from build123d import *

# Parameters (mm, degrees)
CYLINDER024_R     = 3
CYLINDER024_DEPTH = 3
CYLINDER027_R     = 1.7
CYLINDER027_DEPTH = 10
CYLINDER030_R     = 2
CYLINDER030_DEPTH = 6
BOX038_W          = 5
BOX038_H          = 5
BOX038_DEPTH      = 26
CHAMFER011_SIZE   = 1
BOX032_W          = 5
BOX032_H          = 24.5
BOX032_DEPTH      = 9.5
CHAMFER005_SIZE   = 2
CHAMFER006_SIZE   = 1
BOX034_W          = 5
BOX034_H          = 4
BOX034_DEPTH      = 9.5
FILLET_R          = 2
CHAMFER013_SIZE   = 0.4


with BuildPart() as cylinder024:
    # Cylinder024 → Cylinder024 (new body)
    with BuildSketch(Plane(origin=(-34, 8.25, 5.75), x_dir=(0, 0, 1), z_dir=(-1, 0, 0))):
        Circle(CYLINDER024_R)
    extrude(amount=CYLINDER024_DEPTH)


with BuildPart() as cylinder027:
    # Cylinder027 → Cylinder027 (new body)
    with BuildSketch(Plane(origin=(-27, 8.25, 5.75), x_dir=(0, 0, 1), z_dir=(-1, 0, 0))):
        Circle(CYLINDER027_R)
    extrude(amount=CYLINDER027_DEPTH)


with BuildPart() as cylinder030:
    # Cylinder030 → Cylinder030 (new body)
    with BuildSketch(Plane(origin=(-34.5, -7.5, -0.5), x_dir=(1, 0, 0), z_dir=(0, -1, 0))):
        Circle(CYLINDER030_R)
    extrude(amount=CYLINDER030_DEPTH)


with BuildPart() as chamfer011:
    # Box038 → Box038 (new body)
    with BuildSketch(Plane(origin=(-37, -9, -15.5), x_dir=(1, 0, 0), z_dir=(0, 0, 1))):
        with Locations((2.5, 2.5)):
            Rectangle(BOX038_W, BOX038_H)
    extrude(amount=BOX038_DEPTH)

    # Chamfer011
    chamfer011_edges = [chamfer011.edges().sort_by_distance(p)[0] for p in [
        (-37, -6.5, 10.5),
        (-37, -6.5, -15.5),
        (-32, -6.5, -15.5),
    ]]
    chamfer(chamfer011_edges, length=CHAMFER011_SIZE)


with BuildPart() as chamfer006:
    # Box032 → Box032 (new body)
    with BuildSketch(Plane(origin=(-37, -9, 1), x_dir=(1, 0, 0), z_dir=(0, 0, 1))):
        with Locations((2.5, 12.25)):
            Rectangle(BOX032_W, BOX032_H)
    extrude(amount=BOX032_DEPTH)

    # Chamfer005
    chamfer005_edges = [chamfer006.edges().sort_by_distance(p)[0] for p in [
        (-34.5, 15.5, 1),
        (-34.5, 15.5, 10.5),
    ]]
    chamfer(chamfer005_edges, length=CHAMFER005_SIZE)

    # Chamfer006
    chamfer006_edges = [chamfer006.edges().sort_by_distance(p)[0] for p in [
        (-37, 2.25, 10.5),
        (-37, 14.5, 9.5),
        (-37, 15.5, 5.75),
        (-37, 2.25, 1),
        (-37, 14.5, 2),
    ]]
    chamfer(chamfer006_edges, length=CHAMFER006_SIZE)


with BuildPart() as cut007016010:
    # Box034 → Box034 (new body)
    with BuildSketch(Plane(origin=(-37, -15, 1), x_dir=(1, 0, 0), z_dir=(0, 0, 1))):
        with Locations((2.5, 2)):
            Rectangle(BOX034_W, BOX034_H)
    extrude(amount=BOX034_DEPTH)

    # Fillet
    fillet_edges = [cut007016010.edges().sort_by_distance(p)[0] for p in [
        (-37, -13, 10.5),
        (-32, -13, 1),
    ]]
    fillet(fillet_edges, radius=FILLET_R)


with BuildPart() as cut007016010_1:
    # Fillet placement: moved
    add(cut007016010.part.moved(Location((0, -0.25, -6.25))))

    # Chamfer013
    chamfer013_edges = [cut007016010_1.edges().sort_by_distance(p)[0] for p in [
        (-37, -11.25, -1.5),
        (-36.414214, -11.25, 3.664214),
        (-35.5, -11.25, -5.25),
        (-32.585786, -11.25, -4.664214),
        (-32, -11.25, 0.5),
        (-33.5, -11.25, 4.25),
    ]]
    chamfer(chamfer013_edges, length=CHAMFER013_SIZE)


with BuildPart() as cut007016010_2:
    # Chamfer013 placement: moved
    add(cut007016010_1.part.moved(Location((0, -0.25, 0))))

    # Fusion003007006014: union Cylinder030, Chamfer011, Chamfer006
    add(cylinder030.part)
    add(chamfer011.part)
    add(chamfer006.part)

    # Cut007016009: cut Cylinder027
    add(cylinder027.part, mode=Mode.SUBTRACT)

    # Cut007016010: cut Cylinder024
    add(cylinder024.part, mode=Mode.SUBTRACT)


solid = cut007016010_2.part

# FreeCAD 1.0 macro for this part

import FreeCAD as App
import Part
import Sketcher

V = App.Vector


def edges_at(feature, points):
    """Names of the edges that pass closest to the given points."""
    edges = feature.Shape.Edges
    near = lambda p: min(range(len(edges)), key=lambda i: edges[i].distToShape(Part.Vertex(*p))[0])
    return sorted({f"Edge{near(p) + 1}" for p in points})


def add_polygon(sketch, points):
    """Adds a closed chain of lines whose ends are joined by coincident constraints."""
    first, n = sketch.GeometryCount, len(points)
    for a, b in zip(points, points[1:] + points[:1]):
        sketch.addGeometry(Part.LineSegment(App.Vector(*a, 0), App.Vector(*b, 0)), False)
    for i in range(n):
        sketch.addConstraint(Sketcher.Constraint("Coincident", first + i, 2, first + (i + 1) % n, 1))

doc = App.newDocument("Part")
params = doc.addObject("Spreadsheet::Sheet", "Params")
for row, (alias, value) in enumerate([
    ("sketch1_diameter", "6 mm"),
    ("pad1_length", "3 mm"),
    ("sketch2_diameter", "3.4 mm"),
    ("pad2_length", "10 mm"),
    ("sketch3_diameter", "4 mm"),
    ("pad3_length", "6 mm"),
    ("sketch4_width", "5 mm"),
    ("pad4_length", "26 mm"),
    ("chamfer_size", "1 mm"),
    ("sketch5_width", "5 mm"),
    ("sketch5_height", "24.5 mm"),
    ("pad5_length", "9.5 mm"),
    ("chamfer2_size", "2 mm"),
    ("chamfer3_size", "1 mm"),
    ("sketch6_width", "5 mm"),
    ("sketch6_height", "4 mm"),
    ("pad6_length", "9.5 mm"),
    ("fillet_radius", "2 mm"),
    ("chamfer4_size", "0.4 mm"),
], start=1):
    params.set(f"A{row}", alias)
    params.set(f"B{row}", "=" + value)
    params.setAlias(f"B{row}", alias)

body = doc.addObject("PartDesign::Body", "Body")

sketch1 = doc.addObject("Sketcher::SketchObject", "Sketch")
body.addObject(sketch1)
sketch1.AttachmentSupport = (doc.YZ_Plane, [""])
sketch1.MapMode = "FlatFace"
sketch1.AttachmentOffset = App.Placement(V(0, 0, -34), App.Rotation())
sketch1.addGeometry(Part.Circle(V(8.2, 5.8, 0), V(0, 0, 1), 3), False)
sketch1.addConstraint(Sketcher.Constraint("Diameter", 0, 6.0))
sketch1.addConstraint(Sketcher.Constraint("DistanceX", -1, 1, 0, 3, 8.25))
sketch1.addConstraint(Sketcher.Constraint("DistanceY", -1, 1, 0, 3, 5.75))
sketch1.setExpression("Constraints[0]", "Params.sketch1_diameter")
pad1 = doc.addObject("PartDesign::Pad", "Pad")
body.addObject(pad1)
pad1.Profile = sketch1
pad1.setExpression("Length", "Params.pad1_length")
pad1.Reversed = True
body2 = doc.addObject("PartDesign::Body", "Body001")

sketch2 = doc.addObject("Sketcher::SketchObject", "Sketch001")
body2.addObject(sketch2)
sketch2.AttachmentSupport = (doc.getObject("YZ_Plane001"), [""])
sketch2.MapMode = "FlatFace"
sketch2.AttachmentOffset = App.Placement(V(0, 0, -27), App.Rotation())
sketch2.addGeometry(Part.Circle(V(8.2, 5.8, 0), V(0, 0, 1), 1.7), False)
sketch2.addConstraint(Sketcher.Constraint("Diameter", 0, 3.4))
sketch2.addConstraint(Sketcher.Constraint("DistanceX", -1, 1, 0, 3, 8.25))
sketch2.addConstraint(Sketcher.Constraint("DistanceY", -1, 1, 0, 3, 5.75))
sketch2.setExpression("Constraints[0]", "Params.sketch2_diameter")
pad2 = doc.addObject("PartDesign::Pad", "Pad001")
body2.addObject(pad2)
pad2.Profile = sketch2
pad2.setExpression("Length", "Params.pad2_length")
pad2.Reversed = True
body3 = doc.addObject("PartDesign::Body", "Body002")

sketch3 = doc.addObject("Sketcher::SketchObject", "Sketch002")
body3.addObject(sketch3)
sketch3.AttachmentSupport = (doc.getObject("XZ_Plane002"), [""])
sketch3.MapMode = "FlatFace"
sketch3.AttachmentOffset = App.Placement(V(0, 0, 7.5), App.Rotation())
sketch3.addGeometry(Part.Circle(V(-34.5, -0.5, 0), V(0, 0, 1), 2), False)
sketch3.addConstraint(Sketcher.Constraint("Diameter", 0, 4.0))
sketch3.addConstraint(Sketcher.Constraint("DistanceX", 0, 3, -1, 1, 34.5))
sketch3.addConstraint(Sketcher.Constraint("DistanceY", 0, 3, -1, 1, 0.5))
sketch3.setExpression("Constraints[0]", "Params.sketch3_diameter")
pad3 = doc.addObject("PartDesign::Pad", "Pad002")
body3.addObject(pad3)
pad3.Profile = sketch3
pad3.setExpression("Length", "Params.pad3_length")
body4 = doc.addObject("PartDesign::Body", "Body003")

sketch4 = doc.addObject("Sketcher::SketchObject", "Sketch003")
body4.addObject(sketch4)
sketch4.AttachmentSupport = (doc.getObject("XY_Plane003"), [""])
sketch4.MapMode = "FlatFace"
sketch4.AttachmentOffset = App.Placement(V(0, 0, -15.5), App.Rotation())
add_polygon(sketch4, [(-37, -4), (-37, -9), (-32, -9), (-32, -4)])
sketch4.addConstraint(Sketcher.Constraint("Vertical", 0))
sketch4.addConstraint(Sketcher.Constraint("Horizontal", 1))
sketch4.addConstraint(Sketcher.Constraint("Vertical", 2))
sketch4.addConstraint(Sketcher.Constraint("Horizontal", 3))
sketch4.addConstraint(Sketcher.Constraint("Equal", 3, 0))
sketch4.addConstraint(Sketcher.Constraint("DistanceX", 1, 1, 1, 2, 5.0))
sketch4.addConstraint(Sketcher.Constraint("DistanceX", 0, 2, -1, 1, 37.0))
sketch4.addConstraint(Sketcher.Constraint("DistanceY", 0, 2, -1, 1, 9.0))
sketch4.setExpression("Constraints[9]", "Params.sketch4_width")
pad4 = doc.addObject("PartDesign::Pad", "Pad003")
body4.addObject(pad4)
pad4.Profile = sketch4
pad4.setExpression("Length", "Params.pad4_length")
doc.recompute()

chamfer = doc.addObject("PartDesign::Chamfer", "Chamfer")
body4.addObject(chamfer)
chamfer.Base = (pad4, edges_at(pad4, [(-37, -6.5, 10.5), (-37, -6.5, -15.5), (-32, -6.5, -15.5)]))
chamfer.setExpression("Size", "Params.chamfer_size")
body5 = doc.addObject("PartDesign::Body", "Body004")

sketch5 = doc.addObject("Sketcher::SketchObject", "Sketch004")
body5.addObject(sketch5)
sketch5.AttachmentSupport = (doc.getObject("XY_Plane004"), [""])
sketch5.MapMode = "FlatFace"
sketch5.AttachmentOffset = App.Placement(V(0, 0, 1), App.Rotation())
add_polygon(sketch5, [(-37, 16), (-37, -9), (-32, -9), (-32, 16)])
sketch5.addConstraint(Sketcher.Constraint("Vertical", 0))
sketch5.addConstraint(Sketcher.Constraint("Horizontal", 1))
sketch5.addConstraint(Sketcher.Constraint("Vertical", 2))
sketch5.addConstraint(Sketcher.Constraint("Horizontal", 3))
sketch5.addConstraint(Sketcher.Constraint("DistanceX", 1, 1, 1, 2, 5.0))
sketch5.addConstraint(Sketcher.Constraint("DistanceY", 0, 2, 0, 1, 24.5))
sketch5.addConstraint(Sketcher.Constraint("DistanceX", 0, 2, -1, 1, 37.0))
sketch5.addConstraint(Sketcher.Constraint("DistanceY", 0, 2, -1, 1, 9.0))
sketch5.setExpression("Constraints[8]", "Params.sketch5_width")
sketch5.setExpression("Constraints[9]", "Params.sketch5_height")
pad5 = doc.addObject("PartDesign::Pad", "Pad004")
body5.addObject(pad5)
pad5.Profile = sketch5
pad5.setExpression("Length", "Params.pad5_length")
doc.recompute()

chamfer2 = doc.addObject("PartDesign::Chamfer", "Chamfer001")
body5.addObject(chamfer2)
chamfer2.Base = (pad5, edges_at(pad5, [(-34.5, 15.5, 1), (-34.5, 15.5, 10.5)]))
chamfer2.setExpression("Size", "Params.chamfer2_size")
doc.recompute()

chamfer3 = doc.addObject("PartDesign::Chamfer", "Chamfer002")
body5.addObject(chamfer3)
chamfer3.Base = (chamfer2, edges_at(chamfer2, [
    (-37, 2.25, 10.5),
    (-37, 14.5, 9.5),
    (-37, 15.5, 5.75),
    (-37, 2.25, 1),
    (-37, 14.5, 2),
]))
chamfer3.setExpression("Size", "Params.chamfer3_size")
body6 = doc.addObject("PartDesign::Body", "Body005")

sketch6 = doc.addObject("Sketcher::SketchObject", "Sketch005")
body6.addObject(sketch6)
sketch6.AttachmentSupport = (doc.getObject("XY_Plane005"), [""])
sketch6.MapMode = "FlatFace"
sketch6.AttachmentOffset = App.Placement(V(0, 0, 1), App.Rotation())
add_polygon(sketch6, [(-37, -11), (-37, -15), (-32, -15), (-32, -11)])
sketch6.addConstraint(Sketcher.Constraint("Vertical", 0))
sketch6.addConstraint(Sketcher.Constraint("Horizontal", 1))
sketch6.addConstraint(Sketcher.Constraint("Vertical", 2))
sketch6.addConstraint(Sketcher.Constraint("Horizontal", 3))
sketch6.addConstraint(Sketcher.Constraint("DistanceX", 1, 1, 1, 2, 5.0))
sketch6.addConstraint(Sketcher.Constraint("DistanceY", 0, 2, 0, 1, 4.0))
sketch6.addConstraint(Sketcher.Constraint("DistanceX", 0, 2, -1, 1, 37.0))
sketch6.addConstraint(Sketcher.Constraint("DistanceY", 0, 2, -1, 1, 15.0))
sketch6.setExpression("Constraints[8]", "Params.sketch6_width")
sketch6.setExpression("Constraints[9]", "Params.sketch6_height")
pad6 = doc.addObject("PartDesign::Pad", "Pad005")
body6.addObject(pad6)
pad6.Profile = sketch6
pad6.setExpression("Length", "Params.pad6_length")
doc.recompute()

fillet = doc.addObject("PartDesign::Fillet", "Fillet")
body6.addObject(fillet)
fillet.Base = (pad6, edges_at(pad6, [(-37, -13, 10.5), (-32, -13, 1)]))
fillet.setExpression("Radius", "Params.fillet_radius")
body7 = doc.addObject("PartDesign::Body", "Body006")
doc.recompute()

body6.Placement = App.Placement(V(0, -0.25, -6.25), App.Rotation(V(0, 0, 1), 0))
boolean = doc.addObject("PartDesign::Boolean", "Boolean")
body7.addObject(boolean)
boolean.Type = "Fuse"
boolean.addObjects([body6])
doc.recompute()

chamfer4 = doc.addObject("PartDesign::Chamfer", "Chamfer003")
body7.addObject(chamfer4)
chamfer4.Base = (boolean, edges_at(boolean, [
    (-37, -11.25, -1.5),
    (-36.414, -11.25, 3.664),
    (-35.5, -11.25, -5.25),
    (-32.586, -11.25, -4.664),
    (-32, -11.25, 0.5),
    (-33.5, -11.25, 4.25),
]))
chamfer4.setExpression("Size", "Params.chamfer4_size")
body8 = doc.addObject("PartDesign::Body", "Body007")
doc.recompute()

body7.Placement = App.Placement(V(0, -0.25, 0), App.Rotation(V(0, 0, 1), 0))
boolean2 = doc.addObject("PartDesign::Boolean", "Boolean001")
body8.addObject(boolean2)
boolean2.Type = "Fuse"
boolean2.addObjects([body7])
doc.recompute()

boolean3 = doc.addObject("PartDesign::Boolean", "Boolean002")
body8.addObject(boolean3)
boolean3.Type = "Fuse"
boolean3.addObjects([body3])
doc.recompute()

boolean4 = doc.addObject("PartDesign::Boolean", "Boolean003")
body8.addObject(boolean4)
boolean4.Type = "Fuse"
boolean4.addObjects([body4])
doc.recompute()

boolean5 = doc.addObject("PartDesign::Boolean", "Boolean004")
body8.addObject(boolean5)
boolean5.Type = "Fuse"
boolean5.addObjects([body5])
doc.recompute()

boolean6 = doc.addObject("PartDesign::Boolean", "Boolean005")
body8.addObject(boolean6)
boolean6.Type = "Cut"
boolean6.addObjects([body2])
doc.recompute()

boolean7 = doc.addObject("PartDesign::Boolean", "Boolean006")
body8.addObject(boolean7)
boolean7.Type = "Cut"
boolean7.addObjects([body])

doc.recompute()
